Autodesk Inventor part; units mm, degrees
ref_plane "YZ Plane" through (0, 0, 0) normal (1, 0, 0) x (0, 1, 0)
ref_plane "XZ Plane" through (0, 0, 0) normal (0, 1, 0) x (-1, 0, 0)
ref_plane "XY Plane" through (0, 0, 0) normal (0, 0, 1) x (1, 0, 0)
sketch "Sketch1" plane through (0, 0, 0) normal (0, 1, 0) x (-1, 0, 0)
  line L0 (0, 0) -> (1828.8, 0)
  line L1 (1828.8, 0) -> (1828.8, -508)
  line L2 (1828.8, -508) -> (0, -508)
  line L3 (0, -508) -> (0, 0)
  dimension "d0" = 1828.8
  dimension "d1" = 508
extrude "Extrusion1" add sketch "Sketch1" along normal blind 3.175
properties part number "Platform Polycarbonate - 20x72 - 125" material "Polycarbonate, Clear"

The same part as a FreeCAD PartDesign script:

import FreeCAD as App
import Part
import Sketcher
from FreeCAD import Vector
Q = App.Units.Quantity


def add_polygon(sketch, points):
    """Adds a closed chain of lines whose ends are joined by coincident constraints."""
    first, n = sketch.GeometryCount, len(points)
    for a, b in zip(points, points[1:] + points[:1]):
        sketch.addGeometry(Part.LineSegment(App.Vector(*a, 0), App.Vector(*b, 0)), False)
    for i in range(n):
        sketch.addConstraint(Sketcher.Constraint("Coincident", first + i, 2, first + (i + 1) % n, 1))

doc = App.newDocument("Part")
body = doc.addObject("PartDesign::Body", "Body")

# Sketch on XZ plane
sketch1 = body.newObject("Sketcher::SketchObject", "Sketch")
sketch1.AttachmentSupport = (doc.getObject("XZ_Plane"), [""])
sketch1.MapMode = "FlatFace"
add_polygon(sketch1, [(-1829, 0), (0, 0), (0, -508), (-1829, -508)])  # lines 0-3
sketch1.addConstraint(Sketcher.Constraint("Horizontal", 0))
sketch1.addConstraint(Sketcher.Constraint("Vertical", 1))
sketch1.addConstraint(Sketcher.Constraint("Horizontal", 2))
sketch1.addConstraint(Sketcher.Constraint("Vertical", 3))
sketch1.addConstraint(Sketcher.Constraint("Coincident", 0, 2, -1, 1))
sketch1.addConstraint(Sketcher.Constraint("DistanceX", 0, 1, 0, 2, Q("72 in")))
sketch1.addConstraint(Sketcher.Constraint("DistanceY", 1, 2, 1, 1, Q("20 in")))
pad1 = body.newObject("PartDesign::Pad", "Pad")
pad1.Profile = sketch1
pad1.Length = Q("0.125 in")
pad1.Reversed = True

doc.recompute()
